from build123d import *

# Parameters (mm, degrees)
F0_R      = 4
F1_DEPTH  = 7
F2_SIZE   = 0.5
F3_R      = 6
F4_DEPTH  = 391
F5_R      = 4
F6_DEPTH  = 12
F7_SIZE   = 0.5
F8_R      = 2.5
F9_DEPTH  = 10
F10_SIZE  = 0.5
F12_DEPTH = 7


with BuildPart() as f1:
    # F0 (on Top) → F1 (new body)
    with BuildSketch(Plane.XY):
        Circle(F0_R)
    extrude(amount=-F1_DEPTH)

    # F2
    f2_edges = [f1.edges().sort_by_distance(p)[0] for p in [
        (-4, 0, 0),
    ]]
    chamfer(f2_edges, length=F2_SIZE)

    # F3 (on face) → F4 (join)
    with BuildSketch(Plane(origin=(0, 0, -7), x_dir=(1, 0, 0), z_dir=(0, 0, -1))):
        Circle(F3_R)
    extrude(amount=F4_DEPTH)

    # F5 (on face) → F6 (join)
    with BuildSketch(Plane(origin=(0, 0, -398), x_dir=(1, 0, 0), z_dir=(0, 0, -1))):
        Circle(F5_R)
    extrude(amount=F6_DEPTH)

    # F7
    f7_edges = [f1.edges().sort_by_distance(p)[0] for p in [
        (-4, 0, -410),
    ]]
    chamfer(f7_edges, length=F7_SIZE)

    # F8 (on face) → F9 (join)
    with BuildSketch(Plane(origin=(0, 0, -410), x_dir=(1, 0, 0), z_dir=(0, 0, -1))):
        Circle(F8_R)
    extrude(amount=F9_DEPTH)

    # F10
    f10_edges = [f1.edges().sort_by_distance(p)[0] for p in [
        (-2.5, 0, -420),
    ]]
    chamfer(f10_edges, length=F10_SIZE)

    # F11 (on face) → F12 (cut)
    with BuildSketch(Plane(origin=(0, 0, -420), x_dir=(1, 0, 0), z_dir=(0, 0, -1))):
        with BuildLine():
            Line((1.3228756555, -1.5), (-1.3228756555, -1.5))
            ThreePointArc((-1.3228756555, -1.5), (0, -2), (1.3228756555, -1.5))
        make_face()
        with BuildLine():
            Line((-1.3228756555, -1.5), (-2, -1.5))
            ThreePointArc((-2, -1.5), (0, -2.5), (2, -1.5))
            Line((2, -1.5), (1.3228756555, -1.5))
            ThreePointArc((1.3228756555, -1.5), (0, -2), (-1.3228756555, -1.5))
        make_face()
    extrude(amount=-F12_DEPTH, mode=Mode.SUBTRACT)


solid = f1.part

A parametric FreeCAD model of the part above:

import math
import FreeCAD as App
import Part
import Sketcher


def edges_at(feature, points):
    """Names of the edges that pass closest to the given points."""
    edges = feature.Shape.Edges
    near = lambda p: min(range(len(edges)), key=lambda i: edges[i].distToShape(Part.Vertex(*p))[0])
    return sorted({f"Edge{near(p) + 1}" for p in points})

doc = App.newDocument("Part")
body = doc.addObject("PartDesign::Body", "Body")

# Sketch on XY plane
sketch1 = body.newObject("Sketcher::SketchObject", "Sketch")
sketch1.AttachmentSupport = (doc.getObject("XY_Plane"), [""])
sketch1.MapMode = "FlatFace"
sketch1.addGeometry(Part.Circle(App.Vector(0, 0, 0), App.Vector(0, 0, 1), 4), False)
sketch1.addConstraint(Sketcher.Constraint("Coincident", 0, 3, -1, 1))
sketch1.addConstraint(Sketcher.Constraint("Diameter", 0, 8.0))
pad1 = body.newObject("PartDesign::Pad", "Pad")
pad1.Profile = sketch1
pad1.Length = 7
pad1.Reversed = True
doc.recompute()

chamfer = body.newObject("PartDesign::Chamfer", "Chamfer")
chamfer.Base = (pad1, edges_at(pad1, [(-4, 0, 0)]))
chamfer.Size = 0.5

# Sketch on XY plane
sketch2 = body.newObject("Sketcher::SketchObject", "Sketch001")
sketch2.AttachmentSupport = (doc.getObject("XY_Plane"), [""])
sketch2.MapMode = "FlatFace"
sketch2.AttachmentOffset = App.Placement(App.Vector(0, 0, -7), App.Rotation())
sketch2.addGeometry(Part.Circle(App.Vector(0, 0, 0), App.Vector(0, 0, 1), 6), False)
sketch2.addConstraint(Sketcher.Constraint("Coincident", 0, 3, -1, 1))
sketch2.addConstraint(Sketcher.Constraint("Diameter", 0, 12.0))
pad2 = body.newObject("PartDesign::Pad", "Pad001")
pad2.Profile = sketch2
pad2.Length = 391
pad2.Reversed = True

# Sketch on XY plane
sketch3 = body.newObject("Sketcher::SketchObject", "Sketch002")
sketch3.AttachmentSupport = (doc.getObject("XY_Plane"), [""])
sketch3.MapMode = "FlatFace"
sketch3.AttachmentOffset = App.Placement(App.Vector(0, 0, -398), App.Rotation())
sketch3.addGeometry(Part.Circle(App.Vector(0, 0, 0), App.Vector(0, 0, 1), 4), False)
sketch3.addConstraint(Sketcher.Constraint("Coincident", 0, 3, -1, 1))
sketch3.addConstraint(Sketcher.Constraint("Diameter", 0, 8.0))
pad3 = body.newObject("PartDesign::Pad", "Pad002")
pad3.Profile = sketch3
pad3.Length = 12
pad3.Reversed = True
doc.recompute()

chamfer2 = body.newObject("PartDesign::Chamfer", "Chamfer001")
chamfer2.Base = (pad3, edges_at(pad3, [(-4, 0, -410)]))
chamfer2.Size = 0.5

# Sketch on XY plane
sketch4 = body.newObject("Sketcher::SketchObject", "Sketch003")
sketch4.AttachmentSupport = (doc.getObject("XY_Plane"), [""])
sketch4.MapMode = "FlatFace"
sketch4.AttachmentOffset = App.Placement(App.Vector(0, 0, -410), App.Rotation())
sketch4.addGeometry(Part.Circle(App.Vector(0, 0, 0), App.Vector(0, 0, 1), 2.5), False)
sketch4.addConstraint(Sketcher.Constraint("Coincident", 0, 3, -1, 1))
sketch4.addConstraint(Sketcher.Constraint("Diameter", 0, 5.0))
pad4 = body.newObject("PartDesign::Pad", "Pad003")
pad4.Profile = sketch4
pad4.Length = 10
pad4.Reversed = True
doc.recompute()

chamfer3 = body.newObject("PartDesign::Chamfer", "Chamfer002")
chamfer3.Base = (pad4, edges_at(pad4, [(-2.5, 0, -420)]))
chamfer3.Size = 0.5

# Sketch on XY plane
sketch5 = body.newObject("Sketcher::SketchObject", "Sketch004")
sketch5.AttachmentSupport = (doc.getObject("XY_Plane"), [""])
sketch5.MapMode = "FlatFace"
sketch5.AttachmentOffset = App.Placement(App.Vector(0, 0, -420), App.Rotation())
sketch5.addGeometry(Part.ArcOfCircle(Part.Circle(App.Vector(0, 0, 0), App.Vector(0, 0, 1), 2.5), math.radians(37), math.radians(143)), False)
sketch5.addGeometry(Part.LineSegment(App.Vector(2, 1.5, 0), App.Vector(-2, 1.5, 0)), False)
sketch5.addConstraint(Sketcher.Constraint("Coincident", 0, 1, 1, 1))
sketch5.addConstraint(Sketcher.Constraint("Coincident", 1, 2, 0, 2))
sketch5.addConstraint(Sketcher.Constraint("Horizontal", 1))
sketch5.addConstraint(Sketcher.Constraint("Coincident", 0, 3, -1, 1))
sketch5.addConstraint(Sketcher.Constraint("Radius", 0, 2.5))
sketch5.addConstraint(Sketcher.Constraint("DistanceX", 1, 2, 1, 1, 4.0))
pocket1 = body.newObject("PartDesign::Pocket", "Pocket")
pocket1.Profile = sketch5
pocket1.Length = 7
pocket1.Reversed = True

doc.recompute()
